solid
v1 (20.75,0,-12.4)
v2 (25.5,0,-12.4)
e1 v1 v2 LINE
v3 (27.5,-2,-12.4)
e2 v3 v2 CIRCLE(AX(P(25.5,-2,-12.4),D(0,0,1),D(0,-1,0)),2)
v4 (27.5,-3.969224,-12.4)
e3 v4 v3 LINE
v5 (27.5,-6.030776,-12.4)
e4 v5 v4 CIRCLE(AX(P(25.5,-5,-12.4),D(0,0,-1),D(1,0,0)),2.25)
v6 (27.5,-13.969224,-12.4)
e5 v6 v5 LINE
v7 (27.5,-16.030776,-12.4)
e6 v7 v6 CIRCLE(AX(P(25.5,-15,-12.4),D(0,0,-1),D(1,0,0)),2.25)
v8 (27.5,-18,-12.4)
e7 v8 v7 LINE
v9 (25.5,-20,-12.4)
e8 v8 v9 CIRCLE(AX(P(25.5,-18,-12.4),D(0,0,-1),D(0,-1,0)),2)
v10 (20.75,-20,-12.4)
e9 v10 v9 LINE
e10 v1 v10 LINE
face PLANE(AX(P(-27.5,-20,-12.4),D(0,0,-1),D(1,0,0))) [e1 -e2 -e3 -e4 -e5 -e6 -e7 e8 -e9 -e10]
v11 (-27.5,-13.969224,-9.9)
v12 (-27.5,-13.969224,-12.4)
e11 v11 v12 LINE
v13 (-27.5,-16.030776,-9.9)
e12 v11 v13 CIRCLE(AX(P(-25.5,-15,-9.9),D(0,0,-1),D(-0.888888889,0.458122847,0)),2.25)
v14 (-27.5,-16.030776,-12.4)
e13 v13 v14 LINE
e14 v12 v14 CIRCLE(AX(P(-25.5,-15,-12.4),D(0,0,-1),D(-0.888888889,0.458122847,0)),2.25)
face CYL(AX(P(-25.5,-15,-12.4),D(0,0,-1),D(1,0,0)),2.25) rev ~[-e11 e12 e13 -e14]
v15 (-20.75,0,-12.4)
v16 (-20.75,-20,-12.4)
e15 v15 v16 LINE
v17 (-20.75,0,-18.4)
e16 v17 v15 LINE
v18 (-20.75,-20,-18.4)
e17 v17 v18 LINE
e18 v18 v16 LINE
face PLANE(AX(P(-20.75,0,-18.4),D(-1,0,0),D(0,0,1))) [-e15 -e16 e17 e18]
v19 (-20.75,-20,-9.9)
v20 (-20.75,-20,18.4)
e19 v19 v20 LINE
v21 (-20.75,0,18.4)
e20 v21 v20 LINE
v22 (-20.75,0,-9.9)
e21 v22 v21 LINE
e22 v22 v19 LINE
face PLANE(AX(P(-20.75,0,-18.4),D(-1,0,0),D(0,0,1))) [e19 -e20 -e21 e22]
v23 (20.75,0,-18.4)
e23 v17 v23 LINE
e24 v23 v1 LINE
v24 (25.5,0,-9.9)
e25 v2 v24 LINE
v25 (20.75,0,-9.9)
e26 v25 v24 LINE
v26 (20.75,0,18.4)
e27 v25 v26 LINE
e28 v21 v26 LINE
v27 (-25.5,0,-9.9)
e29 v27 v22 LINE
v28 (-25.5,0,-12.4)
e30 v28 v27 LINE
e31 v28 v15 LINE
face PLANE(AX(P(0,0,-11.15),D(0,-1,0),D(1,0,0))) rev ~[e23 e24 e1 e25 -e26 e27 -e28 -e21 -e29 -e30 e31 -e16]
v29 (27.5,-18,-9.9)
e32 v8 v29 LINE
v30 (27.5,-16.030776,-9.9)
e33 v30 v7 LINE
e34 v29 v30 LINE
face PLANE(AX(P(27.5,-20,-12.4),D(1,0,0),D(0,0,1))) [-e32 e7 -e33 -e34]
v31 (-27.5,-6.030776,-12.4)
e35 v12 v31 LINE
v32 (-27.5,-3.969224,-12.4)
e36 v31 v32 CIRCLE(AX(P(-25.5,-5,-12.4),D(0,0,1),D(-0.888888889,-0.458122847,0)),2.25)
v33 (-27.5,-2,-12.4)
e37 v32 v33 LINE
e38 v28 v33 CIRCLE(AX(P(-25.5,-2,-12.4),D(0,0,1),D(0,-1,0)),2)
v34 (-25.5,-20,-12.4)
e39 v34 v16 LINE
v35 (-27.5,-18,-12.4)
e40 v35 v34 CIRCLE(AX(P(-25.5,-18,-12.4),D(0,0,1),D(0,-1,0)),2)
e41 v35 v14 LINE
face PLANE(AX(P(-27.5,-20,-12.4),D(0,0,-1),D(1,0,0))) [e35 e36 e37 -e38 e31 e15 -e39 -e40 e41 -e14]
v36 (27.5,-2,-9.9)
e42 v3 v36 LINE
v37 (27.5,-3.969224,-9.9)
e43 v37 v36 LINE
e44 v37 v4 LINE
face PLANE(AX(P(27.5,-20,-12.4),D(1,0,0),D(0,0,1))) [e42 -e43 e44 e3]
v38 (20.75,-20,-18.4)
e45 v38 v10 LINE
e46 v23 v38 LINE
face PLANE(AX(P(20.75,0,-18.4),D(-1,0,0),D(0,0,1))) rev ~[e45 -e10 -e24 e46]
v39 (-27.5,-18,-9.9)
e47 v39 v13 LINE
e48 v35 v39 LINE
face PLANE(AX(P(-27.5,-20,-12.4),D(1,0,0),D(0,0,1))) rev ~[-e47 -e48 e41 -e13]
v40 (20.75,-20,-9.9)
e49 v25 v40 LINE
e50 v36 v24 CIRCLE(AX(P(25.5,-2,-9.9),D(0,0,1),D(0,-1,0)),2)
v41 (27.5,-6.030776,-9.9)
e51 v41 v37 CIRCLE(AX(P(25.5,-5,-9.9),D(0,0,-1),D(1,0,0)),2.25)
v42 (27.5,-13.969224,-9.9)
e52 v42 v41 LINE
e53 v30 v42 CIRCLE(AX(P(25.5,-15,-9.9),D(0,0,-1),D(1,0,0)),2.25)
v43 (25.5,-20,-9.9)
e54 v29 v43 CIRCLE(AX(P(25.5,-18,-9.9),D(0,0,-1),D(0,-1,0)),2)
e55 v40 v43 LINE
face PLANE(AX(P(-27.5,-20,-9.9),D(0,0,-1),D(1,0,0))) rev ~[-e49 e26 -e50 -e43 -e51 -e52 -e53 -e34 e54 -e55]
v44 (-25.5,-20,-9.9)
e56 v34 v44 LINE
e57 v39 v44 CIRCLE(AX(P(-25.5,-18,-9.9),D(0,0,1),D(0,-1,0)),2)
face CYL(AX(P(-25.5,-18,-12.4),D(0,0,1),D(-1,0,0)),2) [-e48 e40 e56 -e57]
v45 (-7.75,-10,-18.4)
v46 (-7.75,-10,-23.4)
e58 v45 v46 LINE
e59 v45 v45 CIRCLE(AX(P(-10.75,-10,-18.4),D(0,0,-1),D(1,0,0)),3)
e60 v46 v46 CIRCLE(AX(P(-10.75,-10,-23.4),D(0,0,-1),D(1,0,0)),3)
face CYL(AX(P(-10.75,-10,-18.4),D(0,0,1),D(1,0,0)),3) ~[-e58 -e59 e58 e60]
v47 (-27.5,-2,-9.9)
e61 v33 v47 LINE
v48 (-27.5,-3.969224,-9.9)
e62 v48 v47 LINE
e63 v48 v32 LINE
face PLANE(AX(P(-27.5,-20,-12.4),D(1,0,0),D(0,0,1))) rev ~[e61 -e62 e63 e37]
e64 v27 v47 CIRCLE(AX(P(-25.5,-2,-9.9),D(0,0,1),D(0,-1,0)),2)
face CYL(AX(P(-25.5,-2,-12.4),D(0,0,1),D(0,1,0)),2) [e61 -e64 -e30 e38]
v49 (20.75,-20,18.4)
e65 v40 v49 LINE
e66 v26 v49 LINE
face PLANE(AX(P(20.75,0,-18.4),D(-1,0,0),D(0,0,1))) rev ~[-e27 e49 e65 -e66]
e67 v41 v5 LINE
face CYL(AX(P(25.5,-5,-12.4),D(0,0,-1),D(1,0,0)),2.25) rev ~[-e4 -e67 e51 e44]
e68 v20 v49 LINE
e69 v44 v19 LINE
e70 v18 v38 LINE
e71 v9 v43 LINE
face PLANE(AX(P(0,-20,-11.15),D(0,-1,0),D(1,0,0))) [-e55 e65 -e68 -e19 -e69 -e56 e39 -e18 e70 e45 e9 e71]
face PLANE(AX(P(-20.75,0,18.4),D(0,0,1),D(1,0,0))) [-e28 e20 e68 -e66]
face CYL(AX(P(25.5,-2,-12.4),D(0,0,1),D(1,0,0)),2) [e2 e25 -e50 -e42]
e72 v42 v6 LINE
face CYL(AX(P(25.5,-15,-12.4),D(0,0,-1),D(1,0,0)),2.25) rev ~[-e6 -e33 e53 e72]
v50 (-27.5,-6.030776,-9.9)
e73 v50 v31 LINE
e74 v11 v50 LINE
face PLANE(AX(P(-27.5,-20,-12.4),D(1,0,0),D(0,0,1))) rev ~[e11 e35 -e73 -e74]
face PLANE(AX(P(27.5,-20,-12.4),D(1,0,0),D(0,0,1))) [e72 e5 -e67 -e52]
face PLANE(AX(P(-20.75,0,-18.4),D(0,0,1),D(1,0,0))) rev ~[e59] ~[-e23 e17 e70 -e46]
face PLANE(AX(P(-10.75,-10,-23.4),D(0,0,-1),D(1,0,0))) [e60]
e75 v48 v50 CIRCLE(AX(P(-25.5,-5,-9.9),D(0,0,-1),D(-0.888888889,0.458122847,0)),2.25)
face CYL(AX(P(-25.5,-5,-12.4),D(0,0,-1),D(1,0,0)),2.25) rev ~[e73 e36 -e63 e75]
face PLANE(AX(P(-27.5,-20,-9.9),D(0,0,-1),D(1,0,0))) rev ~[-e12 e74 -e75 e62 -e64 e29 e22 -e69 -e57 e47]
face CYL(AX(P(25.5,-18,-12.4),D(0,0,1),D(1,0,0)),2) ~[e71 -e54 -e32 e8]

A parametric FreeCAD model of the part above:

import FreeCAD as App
import Part
import Sketcher
from FreeCAD import Vector
Q = App.Units.Quantity


def edges_at(feature, points):
    """Names of the edges that pass closest to the given points."""
    edges = feature.Shape.Edges
    near = lambda p: min(range(len(edges)), key=lambda i: edges[i].distToShape(Part.Vertex(*p))[0])
    return sorted({f"Edge{near(p) + 1}" for p in points})


def add_polygon(sketch, points):
    """Adds a closed chain of lines whose ends are joined by coincident constraints."""
    first, n = sketch.GeometryCount, len(points)
    for a, b in zip(points, points[1:] + points[:1]):
        sketch.addGeometry(Part.LineSegment(App.Vector(*a, 0), App.Vector(*b, 0)), False)
    for i in range(n):
        sketch.addConstraint(Sketcher.Constraint("Coincident", first + i, 2, first + (i + 1) % n, 1))

doc = App.newDocument("Part")
body = doc.addObject("PartDesign::Body", "Body")

sketch1 = doc.addObject("Sketcher::SketchObject", "Sketch")
body.addObject(sketch1)
sketch1.AttachmentSupport = (doc.XZ_Plane, [""])
sketch1.MapMode = "FlatFace"
add_polygon(sketch1, [(-21, 18), (-21, -18), (21, -18), (21, 18)])
sketch1.addConstraint(Sketcher.Constraint("Vertical", 0))
sketch1.addConstraint(Sketcher.Constraint("Horizontal", 1))
sketch1.addConstraint(Sketcher.Constraint("Vertical", 2))
sketch1.addConstraint(Sketcher.Constraint("Horizontal", 3))
sketch1.addConstraint(Sketcher.Constraint("Symmetric", 0, 2, 2, 2, -1, 1))
sketch1.addConstraint(Sketcher.Constraint("DistanceX", 1, 1, 1, 2, Q("41.5 mm")))
sketch1.addConstraint(Sketcher.Constraint("DistanceY", 0, 2, 0, 1, Q("36.8 mm")))
pad1 = doc.addObject("PartDesign::Pad", "Pad")
body.addObject(pad1)
pad1.Profile = sketch1
pad1.Length = 20

sketch2 = doc.addObject("Sketcher::SketchObject", "Sketch001")
body.addObject(sketch2)
sketch2.AttachmentSupport = (doc.XZ_Plane, [""])
sketch2.MapMode = "FlatFace"
sketch2.AttachmentOffset = App.Placement(Vector(0, 0, 20), App.Rotation())
add_polygon(sketch2, [(-27.5, -9.9), (-27.5, -12.4), (27.5, -12.4), (27.5, -9.9)])
sketch2.addConstraint(Sketcher.Constraint("Vertical", 0))
sketch2.addConstraint(Sketcher.Constraint("Horizontal", 1))
sketch2.addConstraint(Sketcher.Constraint("Vertical", 2))
sketch2.addConstraint(Sketcher.Constraint("Horizontal", 3))
sketch2.addConstraint(Sketcher.Constraint("DistanceX", 1, 1, 1, 2, Q("55 mm")))
sketch2.addConstraint(Sketcher.Constraint("DistanceY", 0, 2, 0, 1, Q("2.5 mm")))
sketch2.addConstraint(Sketcher.Constraint("DistanceX", 0, 2, -1, 1, Q("27.5 mm")))
sketch2.addConstraint(Sketcher.Constraint("DistanceY", 0, 2, -1, 1, Q("12.4 mm")))
pad2 = doc.addObject("PartDesign::Pad", "Pad001")
body.addObject(pad2)
pad2.Profile = sketch2
pad2.Length = 20
pad2.Reversed = True

sketch3 = doc.addObject("Sketcher::SketchObject", "Sketch002")
body.addObject(sketch3)
sketch3.AttachmentSupport = (doc.XY_Plane, [""])
sketch3.MapMode = "FlatFace"
sketch3.AttachmentOffset = App.Placement(Vector(0, 0, -18.4), App.Rotation())
sketch3.addGeometry(Part.Circle(Vector(-10.8, -10, 0), Vector(0, 0, 1), 3), False)
sketch3.addConstraint(Sketcher.Constraint("Diameter", 0, Q("6 mm")))
sketch3.addConstraint(Sketcher.Constraint("DistanceY", 0, 3, -1, 1, Q("10 mm")))
sketch3.addConstraint(Sketcher.Constraint("DistanceX", 0, 3, -1, 1, Q("10.75 mm")))
pad3 = doc.addObject("PartDesign::Pad", "Pad002")
body.addObject(pad3)
pad3.Profile = sketch3
pad3.Length = 5
pad3.Reversed = True

sketch4 = doc.addObject("Sketcher::SketchObject", "Sketch003")
body.addObject(sketch4)
sketch4.AttachmentSupport = (doc.XY_Plane, [""])
sketch4.MapMode = "FlatFace"
sketch4.AttachmentOffset = App.Placement(Vector(0, 0, -12.4), App.Rotation())
sketch4.addGeometry(Part.Circle(Vector(-25.5, -15, 0), Vector(0, 0, 1), 2.2), False)
sketch4.addGeometry(Part.Circle(Vector(-25.5, -5, 0), Vector(0, 0, 1), 2.2), False)
sketch4.addGeometry(Part.Circle(Vector(25.5, -15, 0), Vector(0, 0, 1), 2.2), False)
sketch4.addGeometry(Part.Circle(Vector(25.5, -5, 0), Vector(0, 0, 1), 2.2), False)
sketch4.addConstraint(Sketcher.Constraint("Equal", 0, 1))
sketch4.addConstraint(Sketcher.Constraint("Equal", 1, 2))
sketch4.addConstraint(Sketcher.Constraint("Equal", 2, 3))
sketch4.addConstraint(Sketcher.Constraint("Symmetric", 0, 3, 2, 3, -2))
sketch4.addConstraint(Sketcher.Constraint("Symmetric", 1, 3, 3, 3, -2))
sketch4.addConstraint(Sketcher.Constraint("Vertical", 0, 3, 1, 3))
sketch4.addConstraint(Sketcher.Constraint("Diameter", 0, Q("4.5 mm")))
sketch4.addConstraint(Sketcher.Constraint("DistanceY", 0, 3, -1, 1, Q("15 mm")))
sketch4.addConstraint(Sketcher.Constraint("DistanceY", 1, 3, -1, 1, Q("5 mm")))
sketch4.addConstraint(Sketcher.Constraint("DistanceX", 0, 3, 2, 3, Q("51 mm")))
pocket1 = doc.addObject("PartDesign::Pocket", "Pocket")
body.addObject(pocket1)
pocket1.Profile = sketch4
pocket1.Length = 25
pocket1.Reversed = True
doc.recompute()

fillet = doc.addObject("PartDesign::Fillet", "Fillet")
body.addObject(fillet)
fillet.Base = (pocket1, edges_at(pocket1, [
    (27.5, -20, -11.15),
    (27.5, 0, -11.15),
    (-27.5, -20, -11.15),
    (-27.5, 0, -11.15),
]))
fillet.Radius = 2

doc.recompute()
